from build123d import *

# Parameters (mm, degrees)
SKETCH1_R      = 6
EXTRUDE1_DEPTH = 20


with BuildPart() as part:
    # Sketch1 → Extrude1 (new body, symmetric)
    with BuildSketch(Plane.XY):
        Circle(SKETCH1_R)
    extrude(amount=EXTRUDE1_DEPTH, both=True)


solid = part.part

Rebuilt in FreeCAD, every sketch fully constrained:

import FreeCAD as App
import Part
import Sketcher

V = App.Vector

doc = App.newDocument("Part")
body = doc.addObject("PartDesign::Body", "Body")

# Sketch on XY plane
sketch1 = doc.addObject("Sketcher::SketchObject", "Sketch")
body.addObject(sketch1)
sketch1.AttachmentSupport = (doc.XY_Plane, [""])
sketch1.MapMode = "FlatFace"
sketch1.addGeometry(Part.Circle(V(0, 0, 0), V(0, 0, 1), 6), False)
sketch1.addConstraint(Sketcher.Constraint("Coincident", 0, 3, -1, 1))
sketch1.addConstraint(Sketcher.Constraint("Diameter", 0, 12.0))
pad1 = doc.addObject("PartDesign::Pad", "Pad")
body.addObject(pad1)
pad1.Profile = sketch1
pad1.Length = 40
pad1.Midplane = True

doc.recompute()
